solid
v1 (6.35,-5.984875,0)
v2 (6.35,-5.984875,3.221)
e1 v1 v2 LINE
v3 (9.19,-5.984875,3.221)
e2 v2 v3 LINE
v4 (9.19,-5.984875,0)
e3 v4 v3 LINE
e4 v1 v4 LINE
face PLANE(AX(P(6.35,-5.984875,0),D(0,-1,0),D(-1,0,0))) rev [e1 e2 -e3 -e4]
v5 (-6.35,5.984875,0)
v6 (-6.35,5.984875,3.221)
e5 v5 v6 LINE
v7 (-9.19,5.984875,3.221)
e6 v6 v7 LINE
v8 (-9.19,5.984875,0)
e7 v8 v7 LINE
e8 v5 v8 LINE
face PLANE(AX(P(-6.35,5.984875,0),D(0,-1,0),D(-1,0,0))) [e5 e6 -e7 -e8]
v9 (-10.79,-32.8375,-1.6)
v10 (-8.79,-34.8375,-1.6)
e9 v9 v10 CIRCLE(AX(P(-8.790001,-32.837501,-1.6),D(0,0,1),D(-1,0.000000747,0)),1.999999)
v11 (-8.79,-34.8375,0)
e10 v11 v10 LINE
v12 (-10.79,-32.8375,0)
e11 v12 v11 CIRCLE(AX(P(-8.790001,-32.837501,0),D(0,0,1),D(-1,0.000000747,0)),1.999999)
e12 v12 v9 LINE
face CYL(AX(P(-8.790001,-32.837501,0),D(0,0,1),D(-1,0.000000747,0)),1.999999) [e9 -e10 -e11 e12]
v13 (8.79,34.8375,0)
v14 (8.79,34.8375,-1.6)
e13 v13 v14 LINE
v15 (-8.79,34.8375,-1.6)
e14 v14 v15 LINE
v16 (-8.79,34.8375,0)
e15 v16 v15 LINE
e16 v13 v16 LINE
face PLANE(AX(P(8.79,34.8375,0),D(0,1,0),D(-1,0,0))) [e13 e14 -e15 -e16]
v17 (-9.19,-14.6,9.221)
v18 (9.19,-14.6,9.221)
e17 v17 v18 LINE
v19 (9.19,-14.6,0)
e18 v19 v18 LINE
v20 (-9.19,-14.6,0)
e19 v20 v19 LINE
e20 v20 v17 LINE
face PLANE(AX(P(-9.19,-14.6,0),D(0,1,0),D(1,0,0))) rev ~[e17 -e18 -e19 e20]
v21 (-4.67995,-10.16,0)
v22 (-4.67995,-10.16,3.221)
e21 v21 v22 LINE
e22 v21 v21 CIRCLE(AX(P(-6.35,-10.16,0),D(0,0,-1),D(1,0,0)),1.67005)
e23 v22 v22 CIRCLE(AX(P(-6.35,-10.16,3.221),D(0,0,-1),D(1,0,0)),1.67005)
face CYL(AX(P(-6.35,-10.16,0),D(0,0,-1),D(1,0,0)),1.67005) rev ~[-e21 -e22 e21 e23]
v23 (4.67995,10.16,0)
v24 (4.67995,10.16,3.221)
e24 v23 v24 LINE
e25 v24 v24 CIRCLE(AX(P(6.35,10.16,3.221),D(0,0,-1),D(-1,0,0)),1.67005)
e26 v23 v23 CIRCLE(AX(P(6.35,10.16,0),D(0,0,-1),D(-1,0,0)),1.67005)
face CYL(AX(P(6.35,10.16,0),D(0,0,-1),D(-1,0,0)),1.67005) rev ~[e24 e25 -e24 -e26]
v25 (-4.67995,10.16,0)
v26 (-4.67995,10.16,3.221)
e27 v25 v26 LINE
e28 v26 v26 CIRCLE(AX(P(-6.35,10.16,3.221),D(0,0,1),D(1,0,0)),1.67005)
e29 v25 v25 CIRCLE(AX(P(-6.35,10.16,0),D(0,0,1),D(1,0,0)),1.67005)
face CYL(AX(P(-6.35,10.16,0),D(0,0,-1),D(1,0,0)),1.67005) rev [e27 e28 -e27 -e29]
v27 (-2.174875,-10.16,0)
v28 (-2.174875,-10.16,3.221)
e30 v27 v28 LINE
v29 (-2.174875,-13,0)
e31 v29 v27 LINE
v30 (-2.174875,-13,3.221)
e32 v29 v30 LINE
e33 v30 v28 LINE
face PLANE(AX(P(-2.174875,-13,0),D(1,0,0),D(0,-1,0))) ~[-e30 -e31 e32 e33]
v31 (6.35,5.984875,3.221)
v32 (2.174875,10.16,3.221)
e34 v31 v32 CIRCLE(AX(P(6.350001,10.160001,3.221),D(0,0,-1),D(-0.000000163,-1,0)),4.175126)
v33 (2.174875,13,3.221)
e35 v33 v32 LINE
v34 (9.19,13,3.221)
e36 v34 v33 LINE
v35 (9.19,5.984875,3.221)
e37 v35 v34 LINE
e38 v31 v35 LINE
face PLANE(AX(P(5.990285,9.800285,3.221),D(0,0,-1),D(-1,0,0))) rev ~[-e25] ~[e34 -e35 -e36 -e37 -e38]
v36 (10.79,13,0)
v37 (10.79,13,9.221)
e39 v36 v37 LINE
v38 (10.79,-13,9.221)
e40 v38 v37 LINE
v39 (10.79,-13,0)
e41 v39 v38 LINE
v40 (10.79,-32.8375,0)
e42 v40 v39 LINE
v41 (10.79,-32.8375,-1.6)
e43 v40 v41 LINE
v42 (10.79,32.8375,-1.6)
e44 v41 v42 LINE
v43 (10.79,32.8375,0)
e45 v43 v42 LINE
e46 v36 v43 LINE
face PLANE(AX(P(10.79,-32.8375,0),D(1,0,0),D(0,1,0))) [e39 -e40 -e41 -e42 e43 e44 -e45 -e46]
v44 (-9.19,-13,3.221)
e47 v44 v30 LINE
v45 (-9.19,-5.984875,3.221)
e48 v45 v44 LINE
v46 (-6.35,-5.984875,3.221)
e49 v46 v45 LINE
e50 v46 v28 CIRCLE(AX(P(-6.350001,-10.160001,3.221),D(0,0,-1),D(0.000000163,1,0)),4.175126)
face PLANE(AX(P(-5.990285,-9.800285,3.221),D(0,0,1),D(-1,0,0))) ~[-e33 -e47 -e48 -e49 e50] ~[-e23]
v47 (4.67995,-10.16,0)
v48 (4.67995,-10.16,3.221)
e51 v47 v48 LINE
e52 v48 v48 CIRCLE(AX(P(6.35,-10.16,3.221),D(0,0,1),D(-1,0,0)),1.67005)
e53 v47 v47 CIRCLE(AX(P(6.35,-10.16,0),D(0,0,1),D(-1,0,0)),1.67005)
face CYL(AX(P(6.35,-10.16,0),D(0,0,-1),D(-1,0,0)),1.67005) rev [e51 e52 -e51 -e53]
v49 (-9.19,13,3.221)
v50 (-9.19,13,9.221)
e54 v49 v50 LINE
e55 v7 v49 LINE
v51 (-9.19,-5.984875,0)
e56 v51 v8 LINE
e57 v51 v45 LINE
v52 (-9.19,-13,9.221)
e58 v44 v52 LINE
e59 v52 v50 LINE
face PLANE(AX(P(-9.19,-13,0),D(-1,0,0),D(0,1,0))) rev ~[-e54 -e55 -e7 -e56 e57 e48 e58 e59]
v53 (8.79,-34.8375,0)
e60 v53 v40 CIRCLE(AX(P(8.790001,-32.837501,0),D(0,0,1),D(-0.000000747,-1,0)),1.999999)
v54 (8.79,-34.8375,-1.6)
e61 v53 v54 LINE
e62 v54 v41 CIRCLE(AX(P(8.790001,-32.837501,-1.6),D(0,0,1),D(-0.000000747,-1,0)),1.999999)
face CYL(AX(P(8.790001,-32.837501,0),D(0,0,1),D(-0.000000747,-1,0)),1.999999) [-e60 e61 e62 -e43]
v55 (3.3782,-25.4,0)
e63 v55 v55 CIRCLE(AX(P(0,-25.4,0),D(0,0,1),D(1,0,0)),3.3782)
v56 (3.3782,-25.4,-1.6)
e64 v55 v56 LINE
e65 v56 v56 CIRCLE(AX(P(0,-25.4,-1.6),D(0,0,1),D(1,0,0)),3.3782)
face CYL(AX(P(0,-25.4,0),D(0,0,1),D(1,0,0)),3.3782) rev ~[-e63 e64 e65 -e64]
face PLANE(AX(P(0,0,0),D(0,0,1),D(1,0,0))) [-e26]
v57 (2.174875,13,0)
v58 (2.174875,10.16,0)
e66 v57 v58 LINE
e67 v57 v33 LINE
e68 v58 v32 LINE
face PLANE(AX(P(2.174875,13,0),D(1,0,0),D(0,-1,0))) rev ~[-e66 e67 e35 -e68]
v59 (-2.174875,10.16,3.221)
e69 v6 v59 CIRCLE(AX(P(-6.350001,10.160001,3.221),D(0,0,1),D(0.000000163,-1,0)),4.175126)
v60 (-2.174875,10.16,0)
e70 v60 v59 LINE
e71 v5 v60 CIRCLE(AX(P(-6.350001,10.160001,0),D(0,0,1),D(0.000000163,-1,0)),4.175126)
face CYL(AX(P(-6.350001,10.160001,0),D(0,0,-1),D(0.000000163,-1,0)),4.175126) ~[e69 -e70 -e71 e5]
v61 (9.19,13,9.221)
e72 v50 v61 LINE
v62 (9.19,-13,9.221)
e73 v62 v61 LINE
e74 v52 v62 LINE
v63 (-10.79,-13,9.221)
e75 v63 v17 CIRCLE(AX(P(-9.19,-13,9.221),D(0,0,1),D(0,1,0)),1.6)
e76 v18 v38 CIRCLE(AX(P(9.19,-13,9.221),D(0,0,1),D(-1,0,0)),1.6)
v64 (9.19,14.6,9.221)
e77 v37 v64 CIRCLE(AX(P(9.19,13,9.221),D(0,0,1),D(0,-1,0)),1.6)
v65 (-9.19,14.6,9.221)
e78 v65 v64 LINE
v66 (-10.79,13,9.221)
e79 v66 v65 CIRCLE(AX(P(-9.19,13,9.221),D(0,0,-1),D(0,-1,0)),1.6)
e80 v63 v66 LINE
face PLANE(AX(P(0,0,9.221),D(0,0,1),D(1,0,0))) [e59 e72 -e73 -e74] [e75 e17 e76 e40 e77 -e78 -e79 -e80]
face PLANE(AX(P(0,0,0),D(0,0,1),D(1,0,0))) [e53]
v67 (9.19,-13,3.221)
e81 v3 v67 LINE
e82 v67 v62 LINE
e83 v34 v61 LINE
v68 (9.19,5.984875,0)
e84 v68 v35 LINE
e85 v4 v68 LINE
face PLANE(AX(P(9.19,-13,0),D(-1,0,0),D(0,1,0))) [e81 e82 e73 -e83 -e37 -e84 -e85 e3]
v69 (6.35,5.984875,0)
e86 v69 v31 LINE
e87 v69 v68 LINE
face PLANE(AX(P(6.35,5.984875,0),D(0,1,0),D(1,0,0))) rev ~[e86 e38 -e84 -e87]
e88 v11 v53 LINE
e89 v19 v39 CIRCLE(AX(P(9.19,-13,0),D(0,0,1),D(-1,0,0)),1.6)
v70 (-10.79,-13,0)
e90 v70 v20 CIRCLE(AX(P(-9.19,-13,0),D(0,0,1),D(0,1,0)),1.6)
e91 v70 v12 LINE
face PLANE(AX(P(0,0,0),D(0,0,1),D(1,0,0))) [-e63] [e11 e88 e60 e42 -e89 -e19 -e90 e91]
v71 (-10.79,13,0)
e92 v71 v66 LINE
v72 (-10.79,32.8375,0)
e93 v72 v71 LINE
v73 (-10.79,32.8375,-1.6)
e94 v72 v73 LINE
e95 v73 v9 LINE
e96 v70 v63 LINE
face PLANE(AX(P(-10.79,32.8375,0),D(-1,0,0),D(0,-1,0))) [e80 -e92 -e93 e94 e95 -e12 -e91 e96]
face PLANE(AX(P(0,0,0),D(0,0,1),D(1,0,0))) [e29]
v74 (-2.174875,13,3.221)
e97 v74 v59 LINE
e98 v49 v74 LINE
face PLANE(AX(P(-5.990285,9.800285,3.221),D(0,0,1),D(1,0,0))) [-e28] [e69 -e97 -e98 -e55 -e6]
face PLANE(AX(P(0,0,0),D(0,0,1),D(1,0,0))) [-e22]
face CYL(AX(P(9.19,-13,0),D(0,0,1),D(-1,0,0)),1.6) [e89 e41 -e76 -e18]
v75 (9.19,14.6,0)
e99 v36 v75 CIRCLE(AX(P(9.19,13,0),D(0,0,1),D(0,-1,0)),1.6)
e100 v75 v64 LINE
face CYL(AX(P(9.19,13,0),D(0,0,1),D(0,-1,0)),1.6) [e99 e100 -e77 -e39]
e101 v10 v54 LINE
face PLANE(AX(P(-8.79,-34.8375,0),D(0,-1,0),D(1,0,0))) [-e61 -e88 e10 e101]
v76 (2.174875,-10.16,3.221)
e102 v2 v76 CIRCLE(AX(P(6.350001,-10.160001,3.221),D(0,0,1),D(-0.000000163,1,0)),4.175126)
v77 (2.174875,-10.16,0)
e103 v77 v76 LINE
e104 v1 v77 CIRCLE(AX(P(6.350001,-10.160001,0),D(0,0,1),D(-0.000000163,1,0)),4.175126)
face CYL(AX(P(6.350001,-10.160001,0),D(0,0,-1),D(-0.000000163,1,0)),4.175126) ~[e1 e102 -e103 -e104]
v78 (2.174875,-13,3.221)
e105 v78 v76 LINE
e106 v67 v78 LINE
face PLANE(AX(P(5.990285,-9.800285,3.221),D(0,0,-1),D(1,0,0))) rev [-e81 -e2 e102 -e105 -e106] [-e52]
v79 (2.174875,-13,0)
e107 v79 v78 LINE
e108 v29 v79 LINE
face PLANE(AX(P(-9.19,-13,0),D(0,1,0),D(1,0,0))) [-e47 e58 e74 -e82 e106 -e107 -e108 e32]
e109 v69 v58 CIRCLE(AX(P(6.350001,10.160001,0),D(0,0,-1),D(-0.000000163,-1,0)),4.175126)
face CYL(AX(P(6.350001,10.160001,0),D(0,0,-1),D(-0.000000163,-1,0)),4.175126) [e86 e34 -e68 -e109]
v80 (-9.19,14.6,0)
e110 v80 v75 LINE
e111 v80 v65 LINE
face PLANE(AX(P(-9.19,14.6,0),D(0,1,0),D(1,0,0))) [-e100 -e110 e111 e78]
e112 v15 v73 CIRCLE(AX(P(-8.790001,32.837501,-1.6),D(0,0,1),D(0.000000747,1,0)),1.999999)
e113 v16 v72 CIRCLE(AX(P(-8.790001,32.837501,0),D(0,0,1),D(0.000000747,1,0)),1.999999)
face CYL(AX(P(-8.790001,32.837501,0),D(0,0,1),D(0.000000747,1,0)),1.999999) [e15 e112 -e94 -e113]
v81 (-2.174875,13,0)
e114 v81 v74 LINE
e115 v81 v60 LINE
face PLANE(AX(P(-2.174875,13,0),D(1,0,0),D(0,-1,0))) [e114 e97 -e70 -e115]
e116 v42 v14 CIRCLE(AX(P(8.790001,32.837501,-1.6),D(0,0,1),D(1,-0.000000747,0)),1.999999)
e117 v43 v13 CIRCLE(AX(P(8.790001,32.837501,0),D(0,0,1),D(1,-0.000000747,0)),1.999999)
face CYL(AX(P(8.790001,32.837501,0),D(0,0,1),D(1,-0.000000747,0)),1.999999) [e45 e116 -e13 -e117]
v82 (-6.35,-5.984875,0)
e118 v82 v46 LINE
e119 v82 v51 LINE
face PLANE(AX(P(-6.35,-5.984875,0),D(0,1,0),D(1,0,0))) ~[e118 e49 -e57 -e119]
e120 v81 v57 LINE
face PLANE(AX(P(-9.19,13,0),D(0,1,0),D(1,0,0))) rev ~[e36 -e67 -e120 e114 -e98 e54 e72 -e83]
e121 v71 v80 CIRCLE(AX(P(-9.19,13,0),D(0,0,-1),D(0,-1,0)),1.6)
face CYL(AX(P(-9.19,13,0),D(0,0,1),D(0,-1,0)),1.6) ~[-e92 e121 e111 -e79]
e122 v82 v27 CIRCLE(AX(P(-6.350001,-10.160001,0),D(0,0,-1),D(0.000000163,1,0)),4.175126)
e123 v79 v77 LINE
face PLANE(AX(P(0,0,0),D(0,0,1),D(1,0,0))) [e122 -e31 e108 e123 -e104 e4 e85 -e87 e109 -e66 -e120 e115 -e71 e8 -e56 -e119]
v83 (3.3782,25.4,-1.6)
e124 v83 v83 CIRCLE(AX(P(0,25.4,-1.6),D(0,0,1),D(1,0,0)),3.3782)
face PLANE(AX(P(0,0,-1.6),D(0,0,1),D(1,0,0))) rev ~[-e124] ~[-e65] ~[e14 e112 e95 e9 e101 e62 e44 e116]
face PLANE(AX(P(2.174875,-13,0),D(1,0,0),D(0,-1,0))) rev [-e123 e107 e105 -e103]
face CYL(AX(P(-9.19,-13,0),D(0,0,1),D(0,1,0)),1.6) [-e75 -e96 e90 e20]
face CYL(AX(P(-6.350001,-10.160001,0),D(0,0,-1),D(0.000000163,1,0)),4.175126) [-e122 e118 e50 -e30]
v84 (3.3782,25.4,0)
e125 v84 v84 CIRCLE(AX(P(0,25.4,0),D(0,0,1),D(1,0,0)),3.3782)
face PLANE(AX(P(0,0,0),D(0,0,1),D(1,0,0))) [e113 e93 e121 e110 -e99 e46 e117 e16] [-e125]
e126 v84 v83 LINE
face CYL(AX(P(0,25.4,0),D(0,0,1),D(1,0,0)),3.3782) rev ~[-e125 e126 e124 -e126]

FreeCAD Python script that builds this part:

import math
import FreeCAD as App
import Part
import Sketcher

V = App.Vector
Q = App.Units.Quantity


def faces_at(feature, points):
    """Names of the faces that lie closest to the given points."""
    faces = feature.Shape.Faces
    near = lambda p: min(range(len(faces)), key=lambda i: faces[i].distToShape(Part.Vertex(*p))[0])
    return sorted({f"Face{near(p) + 1}" for p in points})


def add_polygon(sketch, points):
    """Adds a closed chain of lines whose ends are joined by coincident constraints."""
    first, n = sketch.GeometryCount, len(points)
    for a, b in zip(points, points[1:] + points[:1]):
        sketch.addGeometry(Part.LineSegment(App.Vector(*a, 0), App.Vector(*b, 0)), False)
    for i in range(n):
        sketch.addConstraint(Sketcher.Constraint("Coincident", first + i, 2, first + (i + 1) % n, 1))

doc = App.newDocument("Part")
body = doc.addObject("PartDesign::Body", "Body")

# Sketch on XY plane
sketch1 = doc.addObject("Sketcher::SketchObject", "Sketch")
body.addObject(sketch1)
sketch1.AttachmentSupport = (doc.XY_Plane, [""])
sketch1.MapMode = "FlatFace"
add_polygon(sketch1, [(-9, 13), (-9, -13), (9, -13), (9, 13)])  # lines 0-3
sketch1.addConstraint(Sketcher.Constraint("Vertical", 0))
sketch1.addConstraint(Sketcher.Constraint("Horizontal", 1))
sketch1.addConstraint(Sketcher.Constraint("Vertical", 2))
sketch1.addConstraint(Sketcher.Constraint("Horizontal", 3))
sketch1.addConstraint(Sketcher.Constraint("Symmetric", 0, 2, 2, 2, -1, 1))
sketch1.addConstraint(Sketcher.Constraint("DistanceY", 0, 2, 0, 1, Q("26 mm")))
sketch1.addConstraint(Sketcher.Constraint("DistanceX", 1, 1, 1, 2, Q("18.38 mm")))
pad1 = doc.addObject("PartDesign::Pad", "Pad")
body.addObject(pad1)
pad1.Profile = sketch1
pad1.Length = 9.221
doc.recompute()

thickness = doc.addObject("PartDesign::Thickness", "Thickness")
body.addObject(thickness)
thickness.Base = (pad1, faces_at(pad1, [(0, 0, 9.221)]))
thickness.Value = 1.6
thickness.Reversed = False
thickness.Join = "Arc"

# Sketch on XY plane
sketch2 = doc.addObject("Sketcher::SketchObject", "Sketch001")
body.addObject(sketch2)
sketch2.AttachmentSupport = (doc.XY_Plane, [""])
sketch2.MapMode = "FlatFace"
sketch2.addGeometry(Part.ArcOfCircle(Part.Circle(V(-6.4, 10.2, 0), V(0, 0, 1), 4.2), math.radians(-90), math.radians(0)), False)
sketch2.addGeometry(Part.LineSegment(V(-2.2, 10.2, 0), V(-2.2, 13, 0)), False)
sketch2.addGeometry(Part.LineSegment(V(-2.2, 13, 0), V(-9.2, 13, 0)), False)
sketch2.addGeometry(Part.LineSegment(V(-9.2, 13, 0), V(-9.2, 6, 0)), False)
sketch2.addGeometry(Part.LineSegment(V(-9.2, 6, 0), V(-6.3, 6, 0)), False)
sketch2.addGeometry(Part.Circle(V(-6.3, 10.2, 0), V(0, 0, 1), 1.7), False)
sketch2.addConstraint(Sketcher.Constraint("Tangent", 0, 2, 1, 1))
sketch2.addConstraint(Sketcher.Constraint("Coincident", 1, 2, 2, 1))
sketch2.addConstraint(Sketcher.Constraint("Coincident", 2, 2, 3, 1))
sketch2.addConstraint(Sketcher.Constraint("Coincident", 3, 2, 4, 1))
sketch2.addConstraint(Sketcher.Constraint("Tangent", 4, 2, 0, 1))
sketch2.addConstraint(Sketcher.Constraint("Vertical", 1))
sketch2.addConstraint(Sketcher.Constraint("Horizontal", 2))
sketch2.addConstraint(Sketcher.Constraint("Vertical", 3))
sketch2.addConstraint(Sketcher.Constraint("Horizontal", 4))
sketch2.addConstraint(Sketcher.Constraint("Coincident", 5, 3, 0, 3))
sketch2.addConstraint(Sketcher.Constraint("Equal", 4, 1))
sketch2.addConstraint(Sketcher.Constraint("DistanceY", -1, 1, 1, 2, Q("13 mm")))
sketch2.addConstraint(Sketcher.Constraint("Diameter", 5, Q("3.3401 mm")))
sketch2.addConstraint(Sketcher.Constraint("DistanceX", 4, 1, 4, 2, Q("2.84 mm")))
sketch2.addConstraint(Sketcher.Constraint("DistanceX", 0, 3, -1, 1, Q("6.350001 mm")))
sketch2.addConstraint(Sketcher.Constraint("Radius", 0, Q("4.175126 mm")))
pad2 = doc.addObject("PartDesign::Pad", "Pad001")
body.addObject(pad2)
pad2.Profile = sketch2
pad2.Length = 3.221

# Sketch on XY plane
sketch3 = doc.addObject("Sketcher::SketchObject", "Sketch002")
body.addObject(sketch3)
sketch3.AttachmentSupport = (doc.XY_Plane, [""])
sketch3.MapMode = "FlatFace"
sketch3.addGeometry(Part.ArcOfCircle(Part.Circle(V(6.4, 10.2, 0), V(0, 0, 1), 4.2), math.radians(-180), math.radians(-90)), False)
sketch3.addGeometry(Part.LineSegment(V(2.2, 10.2, 0), V(2.2, 13, 0)), False)
sketch3.addGeometry(Part.LineSegment(V(2.2, 13, 0), V(9.2, 13, 0)), False)
sketch3.addGeometry(Part.LineSegment(V(9.2, 13, 0), V(9.2, 6, 0)), False)
sketch3.addGeometry(Part.LineSegment(V(9.2, 6, 0), V(6.3, 6, 0)), False)
sketch3.addGeometry(Part.Circle(V(6.3, 10.2, 0), V(0, 0, 1), 1.7), False)
sketch3.addConstraint(Sketcher.Constraint("Tangent", 0, 1, 1, 1))
sketch3.addConstraint(Sketcher.Constraint("Coincident", 1, 2, 2, 1))
sketch3.addConstraint(Sketcher.Constraint("Coincident", 2, 2, 3, 1))
sketch3.addConstraint(Sketcher.Constraint("Coincident", 3, 2, 4, 1))
sketch3.addConstraint(Sketcher.Constraint("Tangent", 4, 2, 0, 2))
sketch3.addConstraint(Sketcher.Constraint("Vertical", 1))
sketch3.addConstraint(Sketcher.Constraint("Horizontal", 2))
sketch3.addConstraint(Sketcher.Constraint("Vertical", 3))
sketch3.addConstraint(Sketcher.Constraint("Horizontal", 4))
sketch3.addConstraint(Sketcher.Constraint("Coincident", 5, 3, 0, 3))
sketch3.addConstraint(Sketcher.Constraint("Equal", 4, 1))
sketch3.addConstraint(Sketcher.Constraint("DistanceY", -1, 1, 1, 2, Q("13 mm")))
sketch3.addConstraint(Sketcher.Constraint("Diameter", 5, Q("3.3401 mm")))
sketch3.addConstraint(Sketcher.Constraint("DistanceX", 4, 2, 4, 1, Q("2.84 mm")))
sketch3.addConstraint(Sketcher.Constraint("DistanceX", -1, 1, 0, 3, Q("6.350001 mm")))
sketch3.addConstraint(Sketcher.Constraint("Radius", 0, Q("4.175126 mm")))
pad3 = doc.addObject("PartDesign::Pad", "Pad002")
body.addObject(pad3)
pad3.Profile = sketch3
pad3.Length = 3.221
doc.recompute()

mirrored = doc.addObject("PartDesign::Mirrored", "Mirrored")
body.addObject(mirrored)
mirrored.Originals = [pad2, pad3]
mirrored.MirrorPlane = (doc.XZ_Plane, [""])
body.Tip = mirrored

# Sketch on XY plane
sketch4 = doc.addObject("Sketcher::SketchObject", "Sketch003")
body.addObject(sketch4)
sketch4.AttachmentSupport = (doc.XY_Plane, [""])
sketch4.MapMode = "FlatFace"
sketch4.addGeometry(Part.LineSegment(V(-10.8, 32.8, 0), V(-10.8, -32.8, 0)), False)
sketch4.addGeometry(Part.ArcOfCircle(Part.Circle(V(-8.8, -32.8, 0), V(0, 0, 1), 2), math.radians(180), math.radians(270)), False)
sketch4.addGeometry(Part.LineSegment(V(-8.8, -34.8, 0), V(8.8, -34.8, 0)), False)
sketch4.addGeometry(Part.ArcOfCircle(Part.Circle(V(8.8, -32.8, 0), V(0, 0, 1), 2), math.radians(-90), math.radians(0)), False)
sketch4.addGeometry(Part.LineSegment(V(10.8, -32.8, 0), V(10.8, 32.8, 0)), False)
sketch4.addGeometry(Part.ArcOfCircle(Part.Circle(V(8.8, 32.8, 0), V(0, 0, 1), 2), math.radians(0), math.radians(90)), False)
sketch4.addGeometry(Part.LineSegment(V(8.8, 34.8, 0), V(-8.8, 34.8, 0)), False)
sketch4.addGeometry(Part.ArcOfCircle(Part.Circle(V(-8.8, 32.8, 0), V(0, 0, 1), 2), math.radians(90), math.radians(180)), False)
sketch4.addGeometry(Part.Circle(V(0, -25.4, 0), V(0, 0, 1), 3.4), False)
sketch4.addGeometry(Part.Circle(V(0, 25.4, 0), V(0, 0, 1), 3.4), False)
sketch4.addConstraint(Sketcher.Constraint("Tangent", 0, 2, 1, 1))
sketch4.addConstraint(Sketcher.Constraint("Tangent", 1, 2, 2, 1))
sketch4.addConstraint(Sketcher.Constraint("Tangent", 2, 2, 3, 1))
sketch4.addConstraint(Sketcher.Constraint("Tangent", 3, 2, 4, 1))
sketch4.addConstraint(Sketcher.Constraint("Tangent", 4, 2, 5, 1))
sketch4.addConstraint(Sketcher.Constraint("Tangent", 5, 2, 6, 1))
sketch4.addConstraint(Sketcher.Constraint("Tangent", 6, 2, 7, 1))
sketch4.addConstraint(Sketcher.Constraint("Tangent", 7, 2, 0, 1))
sketch4.addConstraint(Sketcher.Constraint("Vertical", 0))
sketch4.addConstraint(Sketcher.Constraint("Horizontal", 2))
sketch4.addConstraint(Sketcher.Constraint("Vertical", 4))
sketch4.addConstraint(Sketcher.Constraint("Horizontal", 6))
sketch4.addConstraint(Sketcher.Constraint("Equal", 1, 3))
sketch4.addConstraint(Sketcher.Constraint("Equal", 3, 5))
sketch4.addConstraint(Sketcher.Constraint("Equal", 5, 7))
sketch4.addConstraint(Sketcher.Constraint("Equal", 8, 9))
sketch4.addConstraint(Sketcher.Constraint("Symmetric", 1, 3, 5, 3, -1, 1))
sketch4.addConstraint(Sketcher.Constraint("Symmetric", 8, 3, 9, 3, -1, 1))
sketch4.addConstraint(Sketcher.Constraint("PointOnObject", 8, 3, -2))
sketch4.addConstraint(Sketcher.Constraint("Radius", 1, Q("1.999999 mm")))
sketch4.addConstraint(Sketcher.Constraint("Diameter", 8, Q("6.7564 mm")))
sketch4.addConstraint(Sketcher.Constraint("DistanceX", 2, 1, 2, 2, Q("17.58 mm")))
sketch4.addConstraint(Sketcher.Constraint("DistanceY", 8, 3, -1, 1, Q("25.4 mm")))
sketch4.addConstraint(Sketcher.Constraint("DistanceY", 0, 2, 0, 1, Q("65.675 mm")))
pad4 = doc.addObject("PartDesign::Pad", "Pad003")
body.addObject(pad4)
pad4.Profile = sketch4
pad4.Length = 1.6
pad4.Reversed = True

doc.recompute()
